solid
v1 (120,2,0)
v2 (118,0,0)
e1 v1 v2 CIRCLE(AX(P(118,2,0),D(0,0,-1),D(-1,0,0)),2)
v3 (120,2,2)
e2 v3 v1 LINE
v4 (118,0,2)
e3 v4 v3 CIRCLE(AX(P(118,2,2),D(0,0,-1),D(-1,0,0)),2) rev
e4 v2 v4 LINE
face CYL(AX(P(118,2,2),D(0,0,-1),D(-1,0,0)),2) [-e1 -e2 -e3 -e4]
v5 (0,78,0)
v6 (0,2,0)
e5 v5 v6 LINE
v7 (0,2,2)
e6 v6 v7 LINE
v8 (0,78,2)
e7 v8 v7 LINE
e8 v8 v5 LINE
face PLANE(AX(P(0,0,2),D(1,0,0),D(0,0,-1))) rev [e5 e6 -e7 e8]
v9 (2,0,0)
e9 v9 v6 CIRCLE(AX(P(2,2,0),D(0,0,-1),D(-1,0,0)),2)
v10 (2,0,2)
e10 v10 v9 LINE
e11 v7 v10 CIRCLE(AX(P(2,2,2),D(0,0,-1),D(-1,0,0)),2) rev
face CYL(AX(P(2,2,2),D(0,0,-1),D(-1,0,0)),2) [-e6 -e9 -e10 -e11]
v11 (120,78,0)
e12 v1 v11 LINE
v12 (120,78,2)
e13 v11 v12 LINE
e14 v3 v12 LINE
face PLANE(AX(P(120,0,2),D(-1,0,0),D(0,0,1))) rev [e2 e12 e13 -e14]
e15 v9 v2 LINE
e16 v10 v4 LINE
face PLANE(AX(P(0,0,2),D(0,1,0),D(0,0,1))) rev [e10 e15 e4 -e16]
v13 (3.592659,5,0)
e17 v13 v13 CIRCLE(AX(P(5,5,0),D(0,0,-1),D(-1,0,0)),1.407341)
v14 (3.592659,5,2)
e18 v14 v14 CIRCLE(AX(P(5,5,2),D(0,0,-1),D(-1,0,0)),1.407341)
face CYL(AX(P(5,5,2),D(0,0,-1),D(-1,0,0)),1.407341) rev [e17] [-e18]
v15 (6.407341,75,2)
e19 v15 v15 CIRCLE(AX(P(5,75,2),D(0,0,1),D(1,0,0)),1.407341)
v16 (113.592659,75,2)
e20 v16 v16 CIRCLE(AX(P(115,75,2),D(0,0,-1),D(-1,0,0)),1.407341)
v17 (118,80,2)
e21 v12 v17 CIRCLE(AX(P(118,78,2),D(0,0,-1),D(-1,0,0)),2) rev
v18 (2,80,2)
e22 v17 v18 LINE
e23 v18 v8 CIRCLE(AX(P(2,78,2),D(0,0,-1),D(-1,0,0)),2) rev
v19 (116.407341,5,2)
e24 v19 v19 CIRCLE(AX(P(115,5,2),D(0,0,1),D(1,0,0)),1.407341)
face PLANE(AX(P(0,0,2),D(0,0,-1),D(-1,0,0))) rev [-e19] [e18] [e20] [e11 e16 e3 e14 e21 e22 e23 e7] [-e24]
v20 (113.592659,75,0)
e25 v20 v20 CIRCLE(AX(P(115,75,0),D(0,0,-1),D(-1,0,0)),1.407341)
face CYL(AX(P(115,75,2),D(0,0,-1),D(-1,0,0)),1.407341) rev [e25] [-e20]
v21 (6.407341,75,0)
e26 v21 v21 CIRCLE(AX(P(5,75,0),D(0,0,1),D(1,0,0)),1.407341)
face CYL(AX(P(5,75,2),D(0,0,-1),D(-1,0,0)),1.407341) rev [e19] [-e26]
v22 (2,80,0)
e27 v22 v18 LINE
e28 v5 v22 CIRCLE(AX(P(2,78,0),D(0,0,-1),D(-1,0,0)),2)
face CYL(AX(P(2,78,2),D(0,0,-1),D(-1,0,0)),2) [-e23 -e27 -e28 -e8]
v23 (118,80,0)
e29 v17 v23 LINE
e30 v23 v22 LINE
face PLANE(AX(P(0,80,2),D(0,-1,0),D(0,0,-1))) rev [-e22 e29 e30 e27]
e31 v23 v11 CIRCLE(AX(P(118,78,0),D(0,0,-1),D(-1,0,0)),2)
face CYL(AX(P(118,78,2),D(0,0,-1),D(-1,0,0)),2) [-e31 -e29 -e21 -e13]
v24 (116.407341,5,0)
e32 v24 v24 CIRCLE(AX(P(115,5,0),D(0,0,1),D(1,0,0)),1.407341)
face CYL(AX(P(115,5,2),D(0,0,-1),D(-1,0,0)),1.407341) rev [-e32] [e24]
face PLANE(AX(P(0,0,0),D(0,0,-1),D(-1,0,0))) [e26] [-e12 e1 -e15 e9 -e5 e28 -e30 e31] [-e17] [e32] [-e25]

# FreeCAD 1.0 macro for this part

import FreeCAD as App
import Part
import Sketcher
from FreeCAD import Vector


def edges_at(feature, points):
    """Names of the edges that pass closest to the given points."""
    edges = feature.Shape.Edges
    near = lambda p: min(range(len(edges)), key=lambda i: edges[i].distToShape(Part.Vertex(*p))[0])
    return sorted({f"Edge{near(p) + 1}" for p in points})

doc = App.newDocument("Part")
body = doc.addObject("PartDesign::Body", "Body")

# Sketch on XY plane
sketch1 = body.newObject("Sketcher::SketchObject", "Sketch")
sketch1.AttachmentSupport = (doc.getObject("XY_Plane"), [""])
sketch1.MapMode = "FlatFace"
sketch1.addGeometry(Part.LineSegment(Vector(0, 80, 0), Vector(0, 0, 0)), False)
sketch1.addGeometry(Part.LineSegment(Vector(0, 0, 0), Vector(120, 0, 0)), False)
sketch1.addGeometry(Part.LineSegment(Vector(120, 0, 0), Vector(120, 80, 0)), False)
sketch1.addGeometry(Part.LineSegment(Vector(120, 80, 0), Vector(0, 80, 0)), False)
sketch1.addConstraint(Sketcher.Constraint("Coincident", 0, 2, 1, 1))
sketch1.addConstraint(Sketcher.Constraint("Coincident", 1, 2, 2, 1))
sketch1.addConstraint(Sketcher.Constraint("Coincident", 2, 2, 3, 1))
sketch1.addConstraint(Sketcher.Constraint("Coincident", 3, 2, 0, 1))
sketch1.addConstraint(Sketcher.Constraint("Vertical", 0))
sketch1.addConstraint(Sketcher.Constraint("Horizontal", 1))
sketch1.addConstraint(Sketcher.Constraint("Vertical", 2))
sketch1.addConstraint(Sketcher.Constraint("Horizontal", 3))
sketch1.addConstraint(Sketcher.Constraint("Coincident", 0, 2, -1, 1))
sketch1.addConstraint(Sketcher.Constraint("DistanceX", 1, 1, 1, 2, 120.0))
sketch1.addConstraint(Sketcher.Constraint("DistanceY", 0, 2, 0, 1, 80.0))
pad1 = body.newObject("PartDesign::Pad", "Pad")
pad1.Profile = sketch1
pad1.Length = 2
doc.recompute()

fillet = body.newObject("PartDesign::Fillet", "Fillet")
fillet.Base = (pad1, edges_at(pad1, [(0, 0, 1)]))
fillet.Radius = 2
doc.recompute()

fillet2 = body.newObject("PartDesign::Fillet", "Fillet001")
fillet2.Base = (fillet, edges_at(fillet, [(0, 80, 1), (120, 80, 1), (120, 0, 1)]))
fillet2.Radius = 2

# Sketch on XY plane
sketch2 = body.newObject("Sketcher::SketchObject", "Sketch001")
sketch2.AttachmentSupport = (doc.getObject("XY_Plane"), [""])
sketch2.MapMode = "FlatFace"
sketch2.addGeometry(Part.Circle(Vector(5, 75, 0), Vector(0, 0, 1), 1.407341), False)
sketch2.addGeometry(Part.Circle(Vector(5, 5, 0), Vector(0, 0, 1), 1.407341), False)
sketch2.addGeometry(Part.Circle(Vector(115, 5, 0), Vector(0, 0, 1), 1.407341), False)
sketch2.addGeometry(Part.Circle(Vector(115, 75, 0), Vector(0, 0, 1), 1.407341), False)
sketch2.addConstraint(Sketcher.Constraint("Equal", 0, 1))
sketch2.addConstraint(Sketcher.Constraint("Equal", 1, 2))
sketch2.addConstraint(Sketcher.Constraint("Equal", 2, 3))
sketch2.addConstraint(Sketcher.Constraint("Horizontal", 1, 3, 2, 3))
sketch2.addConstraint(Sketcher.Constraint("Horizontal", 0, 3, 3, 3))
sketch2.addConstraint(Sketcher.Constraint("Vertical", 0, 3, 1, 3))
sketch2.addConstraint(Sketcher.Constraint("Vertical", 2, 3, 3, 3))
sketch2.addConstraint(Sketcher.Constraint("DistanceX", -1, 1, 0, 3, 5.0))
sketch2.addConstraint(Sketcher.Constraint("DistanceY", -1, 1, 0, 3, 75.0))
sketch2.addConstraint(Sketcher.Constraint("DistanceY", -1, 1, 1, 3, 5.0))
sketch2.addConstraint(Sketcher.Constraint("DistanceX", -1, 1, 2, 3, 115.0))
sketch2.addConstraint(Sketcher.Constraint("Diameter", 0, 2.814681))
pocket1 = body.newObject("PartDesign::Pocket", "Pocket")
pocket1.Profile = sketch2
pocket1.Type = "ThroughAll"
pocket1.Reversed = True

doc.recompute()
